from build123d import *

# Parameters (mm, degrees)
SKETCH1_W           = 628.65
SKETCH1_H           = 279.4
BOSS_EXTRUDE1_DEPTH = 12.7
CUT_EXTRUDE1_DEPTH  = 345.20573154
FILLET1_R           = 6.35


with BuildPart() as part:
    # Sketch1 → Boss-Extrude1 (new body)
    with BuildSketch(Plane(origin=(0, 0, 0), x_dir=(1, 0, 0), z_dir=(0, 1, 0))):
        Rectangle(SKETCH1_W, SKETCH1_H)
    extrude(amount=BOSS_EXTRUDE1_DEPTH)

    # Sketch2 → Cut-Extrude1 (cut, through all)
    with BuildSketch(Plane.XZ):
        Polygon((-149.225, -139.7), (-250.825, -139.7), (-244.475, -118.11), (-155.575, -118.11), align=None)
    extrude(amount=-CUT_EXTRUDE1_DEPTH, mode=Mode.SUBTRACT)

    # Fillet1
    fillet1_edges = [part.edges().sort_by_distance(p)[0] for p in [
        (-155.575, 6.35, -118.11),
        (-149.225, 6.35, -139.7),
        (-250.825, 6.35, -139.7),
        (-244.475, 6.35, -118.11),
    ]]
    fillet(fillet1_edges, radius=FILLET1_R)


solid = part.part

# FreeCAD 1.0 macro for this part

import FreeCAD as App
import Part
import Sketcher
Q = App.Units.Quantity


def edges_at(feature, points):
    """Names of the edges that pass closest to the given points."""
    edges = feature.Shape.Edges
    near = lambda p: min(range(len(edges)), key=lambda i: edges[i].distToShape(Part.Vertex(*p))[0])
    return sorted({f"Edge{near(p) + 1}" for p in points})

doc = App.newDocument("Part")
params = doc.addObject("Spreadsheet::Sheet", "Params")
for row, (alias, value) in enumerate([
    ("sketch1_height", "11 in"),
    ("sketch1_width", "24.75 in"),
    ("pad1_length", "0.5 in"),
    ("sketch2_width", "4 in"),
    ("sketch2_width2", "3.5 in"),
    ("fillet_radius", "0.25 in"),
], start=1):
    params.set(f"A{row}", alias)
    params.set(f"B{row}", "=" + value)
    params.setAlias(f"B{row}", alias)

body = doc.addObject("PartDesign::Body", "Body")

sketch1 = body.newObject("Sketcher::SketchObject", "Sketch")
sketch1.AttachmentSupport = (doc.getObject("XZ_Plane"), [""])
sketch1.MapMode = "FlatFace"
sketch1.addGeometry(Part.LineSegment(App.Vector(-314, -140, 0), App.Vector(-314, 140, 0)), False)
sketch1.addGeometry(Part.LineSegment(App.Vector(-314, 140, 0), App.Vector(314, 140, 0)), False)
sketch1.addGeometry(Part.LineSegment(App.Vector(314, 140, 0), App.Vector(314, -140, 0)), False)
sketch1.addGeometry(Part.LineSegment(App.Vector(314, -140, 0), App.Vector(-314, -140, 0)), False)
sketch1.addConstraint(Sketcher.Constraint("Coincident", 0, 2, 1, 1))
sketch1.addConstraint(Sketcher.Constraint("Coincident", 1, 2, 2, 1))
sketch1.addConstraint(Sketcher.Constraint("Coincident", 2, 2, 3, 1))
sketch1.addConstraint(Sketcher.Constraint("Coincident", 3, 2, 0, 1))
sketch1.addConstraint(Sketcher.Constraint("Vertical", 0))
sketch1.addConstraint(Sketcher.Constraint("Horizontal", 1))
sketch1.addConstraint(Sketcher.Constraint("Vertical", 2))
sketch1.addConstraint(Sketcher.Constraint("Horizontal", 3))
sketch1.addConstraint(Sketcher.Constraint("Symmetric", 0, 2, 2, 2, -1, 1))
sketch1.addConstraint(Sketcher.Constraint("DistanceY", 0, 1, 0, 2, Q("11 in")))
sketch1.addConstraint(Sketcher.Constraint("DistanceX", 1, 1, 1, 2, Q("24.75 in")))
sketch1.setExpression("Constraints[9]", "Params.sketch1_height")
sketch1.setExpression("Constraints[10]", "Params.sketch1_width")
pad1 = body.newObject("PartDesign::Pad", "Pad")
pad1.Profile = sketch1
pad1.setExpression("Length", "Params.pad1_length")
pad1.Reversed = True

sketch2 = body.newObject("Sketcher::SketchObject", "Sketch001")
sketch2.AttachmentSupport = (doc.getObject("XZ_Plane"), [""])
sketch2.MapMode = "FlatFace"
sketch2.addGeometry(Part.LineSegment(App.Vector(-251, -140, 0), App.Vector(-149, -140, 0)), False)
sketch2.addGeometry(Part.LineSegment(App.Vector(-149, -140, 0), App.Vector(-156, -118, 0)), False)
sketch2.addGeometry(Part.LineSegment(App.Vector(-156, -118, 0), App.Vector(-244, -118, 0)), False)
sketch2.addGeometry(Part.LineSegment(App.Vector(-244, -118, 0), App.Vector(-251, -140, 0)), False)
sketch2.addConstraint(Sketcher.Constraint("Coincident", 0, 2, 1, 1))
sketch2.addConstraint(Sketcher.Constraint("Coincident", 1, 2, 2, 1))
sketch2.addConstraint(Sketcher.Constraint("Coincident", 2, 2, 3, 1))
sketch2.addConstraint(Sketcher.Constraint("Coincident", 3, 2, 0, 1))
sketch2.addConstraint(Sketcher.Constraint("Horizontal", 0))
sketch2.addConstraint(Sketcher.Constraint("Horizontal", 2))
sketch2.addConstraint(Sketcher.Constraint("Equal", 1, 3))
sketch2.addConstraint(Sketcher.Constraint("DistanceX", 0, 1, 0, 2, Q("4 in")))
sketch2.addConstraint(Sketcher.Constraint("DistanceX", 2, 2, 2, 1, Q("3.5 in")))
sketch2.addConstraint(Sketcher.Constraint("DistanceY", 0, 2, -1, 1, Q("5.5 in")))
sketch2.addConstraint(Sketcher.Constraint("DistanceY", 1, 2, -1, 1, Q("4.65 in")))
sketch2.addConstraint(Sketcher.Constraint("DistanceX", 0, 2, -1, 1, Q("5.875 in")))
sketch2.setExpression("Constraints[7]", "Params.sketch2_width")
sketch2.setExpression("Constraints[8]", "Params.sketch2_width2")
pocket1 = body.newObject("PartDesign::Pocket", "Pocket")
pocket1.Profile = sketch2
pocket1.Type = "ThroughAll"
doc.recompute()

fillet = body.newObject("PartDesign::Fillet", "Fillet")
fillet.Base = (pocket1, edges_at(pocket1, [
    (-155.575, 6.35, -118.11),
    (-149.225, 6.35, -139.7),
    (-250.825, 6.35, -139.7),
    (-244.475, 6.35, -118.11),
]))
fillet.setExpression("Radius", "Params.fillet_radius")

doc.recompute()
